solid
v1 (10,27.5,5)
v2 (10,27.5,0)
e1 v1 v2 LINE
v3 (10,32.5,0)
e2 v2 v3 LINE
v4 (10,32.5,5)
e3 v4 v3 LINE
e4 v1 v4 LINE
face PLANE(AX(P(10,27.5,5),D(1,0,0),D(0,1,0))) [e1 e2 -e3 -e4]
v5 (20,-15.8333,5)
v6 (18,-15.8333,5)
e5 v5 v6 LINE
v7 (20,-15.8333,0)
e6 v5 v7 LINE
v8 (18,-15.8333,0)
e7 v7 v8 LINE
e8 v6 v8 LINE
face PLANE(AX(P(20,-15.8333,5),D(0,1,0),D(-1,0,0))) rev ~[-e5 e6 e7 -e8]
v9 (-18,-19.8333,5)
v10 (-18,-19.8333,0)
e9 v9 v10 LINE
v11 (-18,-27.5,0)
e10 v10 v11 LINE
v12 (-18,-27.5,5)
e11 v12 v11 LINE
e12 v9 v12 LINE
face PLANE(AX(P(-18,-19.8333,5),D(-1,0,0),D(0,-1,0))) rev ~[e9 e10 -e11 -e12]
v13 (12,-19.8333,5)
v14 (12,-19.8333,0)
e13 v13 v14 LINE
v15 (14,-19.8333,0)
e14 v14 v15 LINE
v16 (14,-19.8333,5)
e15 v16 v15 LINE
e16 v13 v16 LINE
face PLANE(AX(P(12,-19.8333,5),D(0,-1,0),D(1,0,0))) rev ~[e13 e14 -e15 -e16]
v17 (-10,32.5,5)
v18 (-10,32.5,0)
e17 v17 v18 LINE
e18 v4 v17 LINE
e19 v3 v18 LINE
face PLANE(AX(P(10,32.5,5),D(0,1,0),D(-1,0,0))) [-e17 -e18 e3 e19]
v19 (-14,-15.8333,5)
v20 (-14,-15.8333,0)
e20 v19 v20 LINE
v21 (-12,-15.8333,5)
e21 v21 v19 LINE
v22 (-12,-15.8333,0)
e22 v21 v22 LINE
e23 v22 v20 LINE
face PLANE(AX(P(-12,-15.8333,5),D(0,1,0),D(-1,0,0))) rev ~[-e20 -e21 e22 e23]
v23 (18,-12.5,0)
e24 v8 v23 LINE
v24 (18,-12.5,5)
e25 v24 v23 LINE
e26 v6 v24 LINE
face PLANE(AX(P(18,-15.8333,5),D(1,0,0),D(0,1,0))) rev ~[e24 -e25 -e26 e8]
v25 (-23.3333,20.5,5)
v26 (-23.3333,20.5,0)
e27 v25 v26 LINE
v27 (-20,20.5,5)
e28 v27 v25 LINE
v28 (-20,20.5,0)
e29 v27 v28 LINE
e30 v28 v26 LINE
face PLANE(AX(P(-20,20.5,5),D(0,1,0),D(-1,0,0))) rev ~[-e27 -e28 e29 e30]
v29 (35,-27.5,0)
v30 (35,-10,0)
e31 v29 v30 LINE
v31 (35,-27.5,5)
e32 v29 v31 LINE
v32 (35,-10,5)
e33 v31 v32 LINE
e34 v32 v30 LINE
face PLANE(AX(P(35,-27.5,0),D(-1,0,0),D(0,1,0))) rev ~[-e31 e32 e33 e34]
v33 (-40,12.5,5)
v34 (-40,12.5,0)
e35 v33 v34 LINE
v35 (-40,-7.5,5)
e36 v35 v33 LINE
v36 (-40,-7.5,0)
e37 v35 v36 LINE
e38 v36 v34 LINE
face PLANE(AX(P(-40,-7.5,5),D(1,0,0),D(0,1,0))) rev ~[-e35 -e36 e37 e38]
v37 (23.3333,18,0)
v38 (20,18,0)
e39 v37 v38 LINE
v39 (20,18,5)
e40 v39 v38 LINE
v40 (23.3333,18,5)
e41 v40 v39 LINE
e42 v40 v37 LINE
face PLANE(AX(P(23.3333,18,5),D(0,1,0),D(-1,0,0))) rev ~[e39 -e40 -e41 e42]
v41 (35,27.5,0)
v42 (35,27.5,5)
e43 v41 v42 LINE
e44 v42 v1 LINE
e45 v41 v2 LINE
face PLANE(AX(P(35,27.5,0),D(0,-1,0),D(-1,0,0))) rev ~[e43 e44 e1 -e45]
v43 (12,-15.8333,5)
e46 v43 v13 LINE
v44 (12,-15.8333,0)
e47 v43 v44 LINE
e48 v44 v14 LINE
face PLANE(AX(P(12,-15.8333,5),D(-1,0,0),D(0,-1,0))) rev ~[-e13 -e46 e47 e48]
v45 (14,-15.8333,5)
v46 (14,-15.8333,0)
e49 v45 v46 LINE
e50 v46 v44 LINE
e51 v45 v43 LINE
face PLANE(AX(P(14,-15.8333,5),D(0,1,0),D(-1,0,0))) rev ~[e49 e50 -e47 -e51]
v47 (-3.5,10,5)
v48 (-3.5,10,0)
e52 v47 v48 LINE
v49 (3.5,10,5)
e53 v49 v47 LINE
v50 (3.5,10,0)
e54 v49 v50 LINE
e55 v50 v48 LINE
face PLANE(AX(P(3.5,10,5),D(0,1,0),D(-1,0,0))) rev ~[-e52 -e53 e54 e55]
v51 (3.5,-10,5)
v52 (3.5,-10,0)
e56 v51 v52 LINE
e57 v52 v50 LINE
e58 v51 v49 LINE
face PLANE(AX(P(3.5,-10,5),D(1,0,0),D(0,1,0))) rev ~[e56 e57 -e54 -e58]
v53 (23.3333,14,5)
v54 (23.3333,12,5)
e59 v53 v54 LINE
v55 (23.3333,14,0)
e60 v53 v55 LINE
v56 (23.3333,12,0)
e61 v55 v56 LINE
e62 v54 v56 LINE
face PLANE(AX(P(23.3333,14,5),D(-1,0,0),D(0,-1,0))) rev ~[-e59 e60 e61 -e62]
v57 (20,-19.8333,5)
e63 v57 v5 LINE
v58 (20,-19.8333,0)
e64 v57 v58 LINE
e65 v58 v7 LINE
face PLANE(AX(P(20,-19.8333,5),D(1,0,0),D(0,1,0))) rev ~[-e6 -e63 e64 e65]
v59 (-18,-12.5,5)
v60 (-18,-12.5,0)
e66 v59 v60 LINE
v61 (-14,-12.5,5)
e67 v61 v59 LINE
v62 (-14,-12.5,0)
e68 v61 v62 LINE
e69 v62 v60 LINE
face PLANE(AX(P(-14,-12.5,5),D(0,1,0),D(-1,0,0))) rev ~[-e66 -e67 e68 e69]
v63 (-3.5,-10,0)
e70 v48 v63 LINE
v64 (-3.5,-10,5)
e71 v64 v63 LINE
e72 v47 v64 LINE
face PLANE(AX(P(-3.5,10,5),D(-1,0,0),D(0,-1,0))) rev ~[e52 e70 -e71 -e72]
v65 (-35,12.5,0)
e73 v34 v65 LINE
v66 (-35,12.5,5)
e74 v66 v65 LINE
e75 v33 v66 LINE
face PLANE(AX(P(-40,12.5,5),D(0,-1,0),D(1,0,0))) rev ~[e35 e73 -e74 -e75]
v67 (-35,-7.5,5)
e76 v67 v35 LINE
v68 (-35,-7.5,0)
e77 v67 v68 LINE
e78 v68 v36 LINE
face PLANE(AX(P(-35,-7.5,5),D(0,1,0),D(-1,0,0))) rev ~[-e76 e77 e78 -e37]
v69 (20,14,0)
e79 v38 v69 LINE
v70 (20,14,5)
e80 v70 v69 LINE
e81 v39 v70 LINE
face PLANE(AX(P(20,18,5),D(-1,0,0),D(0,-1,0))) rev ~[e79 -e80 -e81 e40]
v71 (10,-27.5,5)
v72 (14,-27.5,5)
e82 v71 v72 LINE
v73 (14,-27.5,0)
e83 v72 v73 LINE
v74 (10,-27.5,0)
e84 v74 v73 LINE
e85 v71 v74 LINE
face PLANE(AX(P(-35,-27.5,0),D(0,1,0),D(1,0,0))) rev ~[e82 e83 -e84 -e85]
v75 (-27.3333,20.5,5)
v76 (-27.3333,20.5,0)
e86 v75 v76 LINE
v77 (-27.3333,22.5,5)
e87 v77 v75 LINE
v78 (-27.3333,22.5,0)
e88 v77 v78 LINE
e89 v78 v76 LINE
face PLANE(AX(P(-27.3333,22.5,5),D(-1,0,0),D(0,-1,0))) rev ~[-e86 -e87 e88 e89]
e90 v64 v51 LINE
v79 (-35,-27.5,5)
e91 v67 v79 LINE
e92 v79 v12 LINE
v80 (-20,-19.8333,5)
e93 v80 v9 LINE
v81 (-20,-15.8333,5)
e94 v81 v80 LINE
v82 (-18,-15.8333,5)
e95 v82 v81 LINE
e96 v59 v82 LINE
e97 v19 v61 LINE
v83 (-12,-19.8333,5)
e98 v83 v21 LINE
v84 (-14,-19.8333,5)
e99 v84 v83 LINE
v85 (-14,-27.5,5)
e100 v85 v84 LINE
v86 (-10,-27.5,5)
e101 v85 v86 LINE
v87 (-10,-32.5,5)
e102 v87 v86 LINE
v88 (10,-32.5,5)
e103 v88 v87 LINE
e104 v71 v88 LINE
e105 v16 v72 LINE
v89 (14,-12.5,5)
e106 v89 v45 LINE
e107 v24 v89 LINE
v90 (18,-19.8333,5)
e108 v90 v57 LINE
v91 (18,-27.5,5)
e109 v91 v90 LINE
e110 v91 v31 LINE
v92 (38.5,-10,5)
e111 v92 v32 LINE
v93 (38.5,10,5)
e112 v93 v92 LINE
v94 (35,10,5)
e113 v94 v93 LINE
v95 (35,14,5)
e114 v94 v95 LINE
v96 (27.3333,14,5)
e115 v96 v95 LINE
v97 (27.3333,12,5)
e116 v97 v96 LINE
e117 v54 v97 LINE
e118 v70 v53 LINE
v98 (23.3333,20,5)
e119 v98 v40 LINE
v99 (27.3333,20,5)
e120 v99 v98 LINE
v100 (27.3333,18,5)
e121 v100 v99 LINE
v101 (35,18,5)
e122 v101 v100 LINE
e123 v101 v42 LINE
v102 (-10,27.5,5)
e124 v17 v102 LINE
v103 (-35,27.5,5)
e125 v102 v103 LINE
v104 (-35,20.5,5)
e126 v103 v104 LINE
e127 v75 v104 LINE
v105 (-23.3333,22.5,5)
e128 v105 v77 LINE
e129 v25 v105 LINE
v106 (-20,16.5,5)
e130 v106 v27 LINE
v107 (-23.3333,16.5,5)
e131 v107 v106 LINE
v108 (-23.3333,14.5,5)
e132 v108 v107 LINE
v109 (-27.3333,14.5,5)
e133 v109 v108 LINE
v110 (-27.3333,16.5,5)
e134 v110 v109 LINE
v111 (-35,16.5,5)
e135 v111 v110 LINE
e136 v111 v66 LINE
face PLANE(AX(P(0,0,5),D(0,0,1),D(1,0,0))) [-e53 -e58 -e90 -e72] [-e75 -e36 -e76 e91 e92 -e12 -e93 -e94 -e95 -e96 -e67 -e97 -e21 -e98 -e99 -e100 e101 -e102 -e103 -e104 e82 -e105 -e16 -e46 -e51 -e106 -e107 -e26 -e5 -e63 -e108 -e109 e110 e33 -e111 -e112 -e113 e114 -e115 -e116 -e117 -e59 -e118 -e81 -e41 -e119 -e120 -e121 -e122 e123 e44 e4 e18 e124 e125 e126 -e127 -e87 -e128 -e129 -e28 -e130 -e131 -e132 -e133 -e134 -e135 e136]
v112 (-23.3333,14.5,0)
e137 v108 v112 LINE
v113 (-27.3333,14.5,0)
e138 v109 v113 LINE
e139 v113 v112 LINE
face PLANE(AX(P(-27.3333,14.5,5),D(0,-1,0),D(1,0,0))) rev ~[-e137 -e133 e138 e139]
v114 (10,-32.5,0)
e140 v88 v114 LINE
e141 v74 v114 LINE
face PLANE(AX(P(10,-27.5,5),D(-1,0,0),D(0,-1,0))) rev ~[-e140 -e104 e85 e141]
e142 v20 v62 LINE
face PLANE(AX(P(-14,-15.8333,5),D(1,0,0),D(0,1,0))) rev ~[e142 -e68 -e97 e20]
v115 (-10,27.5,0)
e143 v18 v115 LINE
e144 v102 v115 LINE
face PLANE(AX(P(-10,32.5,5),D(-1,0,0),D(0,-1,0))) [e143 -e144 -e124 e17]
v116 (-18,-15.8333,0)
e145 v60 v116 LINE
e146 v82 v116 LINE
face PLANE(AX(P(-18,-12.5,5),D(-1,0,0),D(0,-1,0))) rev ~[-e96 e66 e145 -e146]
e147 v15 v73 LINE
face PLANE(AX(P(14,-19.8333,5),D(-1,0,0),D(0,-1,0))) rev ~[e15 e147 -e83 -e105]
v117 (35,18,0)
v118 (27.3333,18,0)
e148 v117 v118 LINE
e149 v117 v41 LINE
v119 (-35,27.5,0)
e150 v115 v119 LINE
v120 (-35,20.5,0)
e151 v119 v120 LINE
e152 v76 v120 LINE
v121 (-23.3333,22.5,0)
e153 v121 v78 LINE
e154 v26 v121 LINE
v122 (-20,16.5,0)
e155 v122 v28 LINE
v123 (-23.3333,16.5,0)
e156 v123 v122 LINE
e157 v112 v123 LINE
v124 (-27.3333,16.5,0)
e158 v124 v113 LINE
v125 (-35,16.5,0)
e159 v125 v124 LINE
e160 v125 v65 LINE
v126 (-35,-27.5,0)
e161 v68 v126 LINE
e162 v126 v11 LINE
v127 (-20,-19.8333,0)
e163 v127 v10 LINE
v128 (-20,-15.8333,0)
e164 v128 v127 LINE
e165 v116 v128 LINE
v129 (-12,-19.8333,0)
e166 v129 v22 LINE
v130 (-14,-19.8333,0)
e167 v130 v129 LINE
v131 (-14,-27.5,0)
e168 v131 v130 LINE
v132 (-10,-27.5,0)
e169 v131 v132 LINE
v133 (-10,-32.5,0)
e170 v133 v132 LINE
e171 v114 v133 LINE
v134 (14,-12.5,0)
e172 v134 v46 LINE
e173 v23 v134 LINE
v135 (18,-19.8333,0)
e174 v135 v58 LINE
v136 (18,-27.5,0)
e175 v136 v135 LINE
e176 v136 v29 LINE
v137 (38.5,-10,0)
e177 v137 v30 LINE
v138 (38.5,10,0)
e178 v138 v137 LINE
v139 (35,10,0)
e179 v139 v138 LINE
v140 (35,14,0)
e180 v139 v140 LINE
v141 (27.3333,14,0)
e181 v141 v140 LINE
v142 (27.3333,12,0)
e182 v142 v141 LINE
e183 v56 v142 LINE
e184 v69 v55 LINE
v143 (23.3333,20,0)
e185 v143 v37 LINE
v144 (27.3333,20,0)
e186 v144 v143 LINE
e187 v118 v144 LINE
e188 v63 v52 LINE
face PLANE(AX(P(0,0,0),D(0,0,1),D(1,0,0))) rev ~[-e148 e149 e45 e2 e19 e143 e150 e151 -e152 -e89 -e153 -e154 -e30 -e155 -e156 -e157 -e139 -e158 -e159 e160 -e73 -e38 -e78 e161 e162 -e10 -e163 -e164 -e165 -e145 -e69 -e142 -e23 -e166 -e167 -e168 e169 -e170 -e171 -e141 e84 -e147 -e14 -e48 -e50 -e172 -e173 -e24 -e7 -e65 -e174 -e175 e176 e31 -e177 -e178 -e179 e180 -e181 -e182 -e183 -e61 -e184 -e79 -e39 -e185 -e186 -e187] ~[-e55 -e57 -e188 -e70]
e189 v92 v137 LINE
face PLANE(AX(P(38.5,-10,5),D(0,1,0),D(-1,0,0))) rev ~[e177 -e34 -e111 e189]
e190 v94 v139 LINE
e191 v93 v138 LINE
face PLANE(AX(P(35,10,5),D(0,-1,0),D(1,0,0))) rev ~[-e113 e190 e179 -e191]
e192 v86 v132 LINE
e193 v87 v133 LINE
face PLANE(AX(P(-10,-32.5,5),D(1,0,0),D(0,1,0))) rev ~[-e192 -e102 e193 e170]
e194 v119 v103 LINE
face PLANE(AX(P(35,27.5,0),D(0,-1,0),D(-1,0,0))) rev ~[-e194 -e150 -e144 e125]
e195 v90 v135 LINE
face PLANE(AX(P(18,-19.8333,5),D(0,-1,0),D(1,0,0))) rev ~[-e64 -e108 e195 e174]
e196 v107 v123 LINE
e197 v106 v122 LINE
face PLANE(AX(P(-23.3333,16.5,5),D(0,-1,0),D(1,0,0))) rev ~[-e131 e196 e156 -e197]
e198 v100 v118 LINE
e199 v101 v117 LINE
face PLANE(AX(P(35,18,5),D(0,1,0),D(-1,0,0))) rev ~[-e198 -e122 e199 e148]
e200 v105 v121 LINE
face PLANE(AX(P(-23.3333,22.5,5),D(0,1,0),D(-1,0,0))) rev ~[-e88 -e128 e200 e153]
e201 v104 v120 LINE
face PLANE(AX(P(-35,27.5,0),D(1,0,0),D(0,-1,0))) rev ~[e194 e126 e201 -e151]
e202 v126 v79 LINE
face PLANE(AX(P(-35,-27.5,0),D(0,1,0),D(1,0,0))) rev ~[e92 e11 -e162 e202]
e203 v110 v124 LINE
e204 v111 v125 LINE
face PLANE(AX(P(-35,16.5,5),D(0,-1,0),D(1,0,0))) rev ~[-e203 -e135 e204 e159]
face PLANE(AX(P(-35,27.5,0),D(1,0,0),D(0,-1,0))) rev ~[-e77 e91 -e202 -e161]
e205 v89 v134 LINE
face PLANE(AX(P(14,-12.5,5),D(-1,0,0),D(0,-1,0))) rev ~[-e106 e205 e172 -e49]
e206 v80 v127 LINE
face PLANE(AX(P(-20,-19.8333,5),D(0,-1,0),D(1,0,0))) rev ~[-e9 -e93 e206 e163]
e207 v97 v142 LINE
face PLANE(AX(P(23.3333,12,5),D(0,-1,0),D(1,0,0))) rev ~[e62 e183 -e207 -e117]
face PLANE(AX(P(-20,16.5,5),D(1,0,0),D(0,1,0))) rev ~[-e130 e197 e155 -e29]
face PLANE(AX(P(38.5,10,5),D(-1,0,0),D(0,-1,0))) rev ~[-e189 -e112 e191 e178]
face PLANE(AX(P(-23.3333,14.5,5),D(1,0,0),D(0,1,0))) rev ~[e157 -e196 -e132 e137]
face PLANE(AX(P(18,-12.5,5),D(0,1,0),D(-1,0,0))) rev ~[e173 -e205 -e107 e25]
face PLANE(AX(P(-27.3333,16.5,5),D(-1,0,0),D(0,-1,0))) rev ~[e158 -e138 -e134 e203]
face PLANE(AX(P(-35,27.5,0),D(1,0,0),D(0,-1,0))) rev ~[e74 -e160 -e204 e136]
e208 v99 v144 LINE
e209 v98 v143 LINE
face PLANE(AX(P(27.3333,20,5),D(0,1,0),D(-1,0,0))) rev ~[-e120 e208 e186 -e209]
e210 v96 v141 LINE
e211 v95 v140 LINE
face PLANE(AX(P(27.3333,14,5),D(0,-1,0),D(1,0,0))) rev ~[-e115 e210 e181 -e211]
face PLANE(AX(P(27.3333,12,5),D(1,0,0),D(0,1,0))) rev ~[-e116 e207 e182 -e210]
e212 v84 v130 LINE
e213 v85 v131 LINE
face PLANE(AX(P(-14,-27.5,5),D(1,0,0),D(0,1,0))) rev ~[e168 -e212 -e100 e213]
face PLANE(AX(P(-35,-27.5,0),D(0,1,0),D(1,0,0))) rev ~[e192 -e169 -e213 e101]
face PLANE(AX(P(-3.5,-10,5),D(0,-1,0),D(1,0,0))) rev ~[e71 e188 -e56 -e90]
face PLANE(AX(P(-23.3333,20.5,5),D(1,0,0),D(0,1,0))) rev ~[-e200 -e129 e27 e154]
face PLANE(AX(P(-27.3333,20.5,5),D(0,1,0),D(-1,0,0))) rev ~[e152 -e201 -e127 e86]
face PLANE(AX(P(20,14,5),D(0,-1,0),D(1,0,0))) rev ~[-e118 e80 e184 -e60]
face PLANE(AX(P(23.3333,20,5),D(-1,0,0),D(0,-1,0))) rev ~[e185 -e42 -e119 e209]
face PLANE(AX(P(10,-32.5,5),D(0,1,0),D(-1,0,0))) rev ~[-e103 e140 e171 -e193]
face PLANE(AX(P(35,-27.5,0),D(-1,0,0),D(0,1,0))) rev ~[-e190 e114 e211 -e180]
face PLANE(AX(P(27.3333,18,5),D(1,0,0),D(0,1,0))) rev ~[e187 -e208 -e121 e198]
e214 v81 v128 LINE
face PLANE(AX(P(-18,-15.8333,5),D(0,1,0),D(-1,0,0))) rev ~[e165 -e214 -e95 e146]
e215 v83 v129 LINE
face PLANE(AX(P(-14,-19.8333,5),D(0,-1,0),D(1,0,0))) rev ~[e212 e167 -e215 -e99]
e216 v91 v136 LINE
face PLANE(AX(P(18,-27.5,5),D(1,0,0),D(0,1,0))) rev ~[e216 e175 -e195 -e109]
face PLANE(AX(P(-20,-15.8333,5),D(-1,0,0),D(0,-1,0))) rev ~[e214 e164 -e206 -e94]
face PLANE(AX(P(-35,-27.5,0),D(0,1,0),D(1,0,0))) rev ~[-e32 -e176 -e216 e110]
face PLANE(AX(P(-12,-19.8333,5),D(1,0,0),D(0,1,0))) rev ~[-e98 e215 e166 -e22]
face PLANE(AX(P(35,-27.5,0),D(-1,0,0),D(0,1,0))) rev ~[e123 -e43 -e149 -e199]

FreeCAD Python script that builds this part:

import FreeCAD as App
import Part
import Sketcher


def add_polygon(sketch, points):
    """Adds a closed chain of lines whose ends are joined by coincident constraints."""
    first, n = sketch.GeometryCount, len(points)
    for a, b in zip(points, points[1:] + points[:1]):
        sketch.addGeometry(Part.LineSegment(App.Vector(*a, 0), App.Vector(*b, 0)), False)
    for i in range(n):
        sketch.addConstraint(Sketcher.Constraint("Coincident", first + i, 2, first + (i + 1) % n, 1))

doc = App.newDocument("Part")
body = doc.addObject("PartDesign::Body", "Body")

# Sketch on XY plane
sketch1 = body.newObject("Sketcher::SketchObject", "Sketch")
sketch1.AttachmentSupport = (doc.getObject("XY_Plane"), [""])
sketch1.MapMode = "FlatFace"
add_polygon(sketch1, [(-35, 28), (-35, -28), (35, -28), (35, 28)])  # lines 0-3
sketch1.addConstraint([
    Sketcher.Constraint("Vertical", 0),
    Sketcher.Constraint("Horizontal", 1),
    Sketcher.Constraint("Vertical", 2),
    Sketcher.Constraint("Horizontal", 3),
    Sketcher.Constraint("Symmetric", 0, 2, 2, 2, -1, 1),
    Sketcher.Constraint("DistanceX", 1, 1, 1, 2, 70.0),
    Sketcher.Constraint("DistanceY", 0, 2, 0, 1, 55.0),
])
pad1 = body.newObject("PartDesign::Pad", "Pad")
pad1.Profile = sketch1
pad1.Length = 5

# Sketch on XY plane
sketch2 = body.newObject("Sketcher::SketchObject", "Sketch001")
sketch2.AttachmentSupport = (doc.getObject("XY_Plane"), [""])
sketch2.MapMode = "FlatFace"
sketch2.AttachmentOffset = App.Placement(App.Vector(0, 0, 5), App.Rotation())
add_polygon(sketch2, [(10, -27.5), (-10, -27.5), (-10, -32.5), (10, -32.5)])  # lines 0-3
add_polygon(sketch2, [(-40, -7.5), (-35, -7.5), (-35, 12.5), (-40, 12.5)])  # lines 4-7
add_polygon(sketch2, [(-10, 32.5), (-10, 27.5), (10, 27.5), (10, 32.5)])  # lines 8-11
add_polygon(sketch2, [(38.5, 10), (35, 10), (35, -10), (38.5, -10)])  # lines 12-15
sketch2.addConstraint([
    Sketcher.Constraint("Horizontal", 0),
    Sketcher.Constraint("Vertical", 1),
    Sketcher.Constraint("Horizontal", 2),
    Sketcher.Constraint("Vertical", 3),
    Sketcher.Constraint("Horizontal", 4),
    Sketcher.Constraint("Vertical", 5),
    Sketcher.Constraint("Horizontal", 6),
    Sketcher.Constraint("Vertical", 7),
    Sketcher.Constraint("Vertical", 8),
    Sketcher.Constraint("Horizontal", 9),
    Sketcher.Constraint("Vertical", 10),
    Sketcher.Constraint("Horizontal", 11),
    Sketcher.Constraint("Horizontal", 12),
    Sketcher.Constraint("Vertical", 13),
    Sketcher.Constraint("Horizontal", 14),
    Sketcher.Constraint("Vertical", 15),
    Sketcher.Constraint("Symmetric", 3, 2, 8, 2, -1, 1),
    Sketcher.Constraint("Symmetric", 1, 2, 10, 2, -1, 1),
    Sketcher.Constraint("Vertical", 1, 2, 8, 2),
    Sketcher.Constraint("Equal", 6, 1),
    Sketcher.Constraint("Equal", 11, 5),
    Sketcher.Constraint("Equal", 7, 13),
    Sketcher.Constraint("DistanceX", 0, 2, 0, 1, 20.0),
    Sketcher.Constraint("DistanceX", 4, 1, 4, 2, 5.0),
    Sketcher.Constraint("DistanceX", 12, 2, 12, 1, 3.5),
    Sketcher.Constraint("DistanceX", 4, 2, 0, 2, 25.0),
    Sketcher.Constraint("DistanceY", 0, 2, 4, 2, 20.0),
    Sketcher.Constraint("DistanceY", 5, 2, 8, 2, 15.0),
    Sketcher.Constraint("DistanceX", 9, 2, 12, 2, 25.0),
    Sketcher.Constraint("DistanceY", 12, 2, 9, 2, 17.5),
])
pad2 = body.newObject("PartDesign::Pad", "Pad001")
pad2.Profile = sketch2
pad2.Length = 5
pad2.Reversed = True

# Sketch on XY plane
sketch3 = body.newObject("Sketcher::SketchObject", "Sketch002")
sketch3.AttachmentSupport = (doc.getObject("XY_Plane"), [""])
sketch3.MapMode = "FlatFace"
sketch3.AttachmentOffset = App.Placement(App.Vector(0, 0, 5), App.Rotation())
add_polygon(sketch3, [(35, 14), (35, 18), (27.3, 18), (27.3, 20), (23.3, 20), (23.3, 18), (20, 18), (20, 14), (23.3, 14), (23.3, 12), (27.3, 12), (27.3, 14)])  # lines 0-11
add_polygon(sketch3, [(-27.3, 16.5), (-27.3, 14.5), (-23.3, 14.5), (-23.3, 16.5), (-20, 16.5), (-20, 20.5), (-23.3, 20.5), (-23.3, 22.5), (-27.3, 22.5), (-27.3, 20.5), (-35, 20.5), (-35, 16.5)])  # lines 12-23
add_polygon(sketch3, [(-20, -19.8), (-18, -19.8), (-18, -27.5), (-14, -27.5), (-14, -19.8), (-12, -19.8), (-12, -15.8), (-14, -15.8), (-14, -12.5), (-18, -12.5), (-18, -15.8), (-20, -15.8)])  # lines 24-35
add_polygon(sketch3, [(12, -19.8), (14, -19.8), (14, -27.5), (18, -27.5), (18, -19.8), (20, -19.8), (20, -15.8), (18, -15.8), (18, -12.5), (14, -12.5), (14, -15.8), (12, -15.8)])  # lines 36-47
sketch3.addConstraint([
    Sketcher.Constraint("Vertical", 0),
    Sketcher.Constraint("Horizontal", 1),
    Sketcher.Constraint("Vertical", 2),
    Sketcher.Constraint("Horizontal", 3),
    Sketcher.Constraint("Vertical", 4),
    Sketcher.Constraint("Horizontal", 5),
    Sketcher.Constraint("Vertical", 6),
    Sketcher.Constraint("Horizontal", 7),
    Sketcher.Constraint("Vertical", 8),
    Sketcher.Constraint("Horizontal", 9),
    Sketcher.Constraint("Vertical", 10),
    Sketcher.Constraint("Horizontal", 11),
    Sketcher.Constraint("Vertical", 12),
    Sketcher.Constraint("Horizontal", 13),
    Sketcher.Constraint("Vertical", 14),
    Sketcher.Constraint("Horizontal", 15),
    Sketcher.Constraint("Vertical", 16),
    Sketcher.Constraint("Horizontal", 17),
    Sketcher.Constraint("Vertical", 18),
    Sketcher.Constraint("Horizontal", 19),
    Sketcher.Constraint("Vertical", 20),
    Sketcher.Constraint("Horizontal", 21),
    Sketcher.Constraint("Vertical", 22),
    Sketcher.Constraint("Horizontal", 23),
    Sketcher.Constraint("Horizontal", 24),
    Sketcher.Constraint("Vertical", 25),
    Sketcher.Constraint("Horizontal", 26),
    Sketcher.Constraint("Vertical", 27),
    Sketcher.Constraint("Horizontal", 28),
    Sketcher.Constraint("Vertical", 29),
    Sketcher.Constraint("Horizontal", 30),
    Sketcher.Constraint("Vertical", 31),
    Sketcher.Constraint("Horizontal", 32),
    Sketcher.Constraint("Vertical", 33),
    Sketcher.Constraint("Horizontal", 34),
    Sketcher.Constraint("Vertical", 35),
    Sketcher.Constraint("Horizontal", 36),
    Sketcher.Constraint("Vertical", 37),
    Sketcher.Constraint("Horizontal", 38),
    Sketcher.Constraint("Vertical", 39),
    Sketcher.Constraint("Horizontal", 40),
    Sketcher.Constraint("Vertical", 41),
    Sketcher.Constraint("Horizontal", 42),
    Sketcher.Constraint("Vertical", 43),
    Sketcher.Constraint("Horizontal", 44),
    Sketcher.Constraint("Vertical", 45),
    Sketcher.Constraint("Horizontal", 46),
    Sketcher.Constraint("Vertical", 47),
    Sketcher.Constraint("Symmetric", 27, 2, 36, 2, -2),
    Sketcher.Constraint("Symmetric", 25, 2, 38, 2, -2),
    Sketcher.Constraint("Symmetric", 35, 2, 40, 2, -2),
    Sketcher.Constraint("Symmetric", 33, 2, 42, 2, -2),
    Sketcher.Constraint("Symmetric", 31, 2, 44, 2, -2),
    Sketcher.Constraint("Symmetric", 29, 2, 46, 2, -2),
    Sketcher.Constraint("Horizontal", 1, 2, 4, 2),
    Sketcher.Constraint("Horizontal", 7, 2, 10, 2),
    Sketcher.Constraint("Horizontal", 17, 2, 20, 2),
    Sketcher.Constraint("Horizontal", 15, 2, 22, 2),
    Sketcher.Constraint("Horizontal", 24, 2, 27, 2),
    Sketcher.Constraint("Horizontal", 30, 2, 33, 2),
    Sketcher.Constraint("Vertical", 4, 2, 7, 2),
    Sketcher.Constraint("Vertical", 2, 2, 9, 2),
    Sketcher.Constraint("Vertical", 14, 2, 17, 2),
    Sketcher.Constraint("Vertical", 12, 2, 19, 2),
    Sketcher.Constraint("Vertical", 27, 2, 30, 2),
    Sketcher.Constraint("Vertical", 25, 2, 32, 2),
    Sketcher.Constraint("Vertical", 16, 2, 34, 2),
    Sketcher.Constraint("Vertical", 6, 2, 40, 2),
    Sketcher.Constraint("Equal", 9, 13),
    Sketcher.Constraint("Equal", 7, 15),
    Sketcher.Constraint("Equal", 11, 21),
    Sketcher.Constraint("Equal", 19, 26),
    Sketcher.Constraint("Equal", 24, 28),
    Sketcher.Constraint("Equal", 44, 0),
    Sketcher.Constraint("Equal", 46, 2),
    Sketcher.Constraint("Equal", 4, 8),
    Sketcher.Constraint("Equal", 10, 12),
    Sketcher.Constraint("Equal", 6, 16),
    Sketcher.Constraint("Equal", 14, 18),
    Sketcher.Constraint("Equal", 23, 25),
    Sketcher.Constraint("Equal", 22, 29),
    Sketcher.Constraint("Equal", 17, 31),
    Sketcher.Constraint("DistanceX", 3, 2, 3, 1, 4.0),
    Sketcher.Constraint("DistanceY", -1, 1, 2, 2, 20.0),
    Sketcher.Constraint("DistanceX", -1, 1, 5, 2, 20.0),
    Sketcher.Constraint("DistanceX", 5, 2, 0, 2, 15.0),
    Sketcher.Constraint("DistanceY", 13, 2, 18, 2, 8.0),
    Sketcher.Constraint("DistanceY", 25, 2, 13, 2, 42.0),
    Sketcher.Constraint("DistanceY", -1, 1, 12, 2, 14.5),
    Sketcher.Constraint("DistanceX", 1, 2, 1, 1, 7.6667),
])
pocket1 = body.newObject("PartDesign::Pocket", "Pocket")
pocket1.Profile = sketch3
pocket1.Length = 5

# Sketch on XY plane
sketch4 = body.newObject("Sketcher::SketchObject", "Sketch003")
sketch4.AttachmentSupport = (doc.getObject("XY_Plane"), [""])
sketch4.MapMode = "FlatFace"
sketch4.AttachmentOffset = App.Placement(App.Vector(0, 0, 5), App.Rotation())
add_polygon(sketch4, [(-4, 10), (-4, -10), (4, -10), (4, 10)])  # lines 0-3
sketch4.addConstraint([
    Sketcher.Constraint("Vertical", 0),
    Sketcher.Constraint("Horizontal", 1),
    Sketcher.Constraint("Vertical", 2),
    Sketcher.Constraint("Horizontal", 3),
    Sketcher.Constraint("Symmetric", 0, 2, 2, 2, -1, 1),
    Sketcher.Constraint("DistanceX", 1, 1, 1, 2, 7.0),
    Sketcher.Constraint("DistanceY", 0, 2, 0, 1, 20.0),
])
pocket2 = body.newObject("PartDesign::Pocket", "Pocket001")
pocket2.Profile = sketch4
pocket2.Length = 10

doc.recompute()
